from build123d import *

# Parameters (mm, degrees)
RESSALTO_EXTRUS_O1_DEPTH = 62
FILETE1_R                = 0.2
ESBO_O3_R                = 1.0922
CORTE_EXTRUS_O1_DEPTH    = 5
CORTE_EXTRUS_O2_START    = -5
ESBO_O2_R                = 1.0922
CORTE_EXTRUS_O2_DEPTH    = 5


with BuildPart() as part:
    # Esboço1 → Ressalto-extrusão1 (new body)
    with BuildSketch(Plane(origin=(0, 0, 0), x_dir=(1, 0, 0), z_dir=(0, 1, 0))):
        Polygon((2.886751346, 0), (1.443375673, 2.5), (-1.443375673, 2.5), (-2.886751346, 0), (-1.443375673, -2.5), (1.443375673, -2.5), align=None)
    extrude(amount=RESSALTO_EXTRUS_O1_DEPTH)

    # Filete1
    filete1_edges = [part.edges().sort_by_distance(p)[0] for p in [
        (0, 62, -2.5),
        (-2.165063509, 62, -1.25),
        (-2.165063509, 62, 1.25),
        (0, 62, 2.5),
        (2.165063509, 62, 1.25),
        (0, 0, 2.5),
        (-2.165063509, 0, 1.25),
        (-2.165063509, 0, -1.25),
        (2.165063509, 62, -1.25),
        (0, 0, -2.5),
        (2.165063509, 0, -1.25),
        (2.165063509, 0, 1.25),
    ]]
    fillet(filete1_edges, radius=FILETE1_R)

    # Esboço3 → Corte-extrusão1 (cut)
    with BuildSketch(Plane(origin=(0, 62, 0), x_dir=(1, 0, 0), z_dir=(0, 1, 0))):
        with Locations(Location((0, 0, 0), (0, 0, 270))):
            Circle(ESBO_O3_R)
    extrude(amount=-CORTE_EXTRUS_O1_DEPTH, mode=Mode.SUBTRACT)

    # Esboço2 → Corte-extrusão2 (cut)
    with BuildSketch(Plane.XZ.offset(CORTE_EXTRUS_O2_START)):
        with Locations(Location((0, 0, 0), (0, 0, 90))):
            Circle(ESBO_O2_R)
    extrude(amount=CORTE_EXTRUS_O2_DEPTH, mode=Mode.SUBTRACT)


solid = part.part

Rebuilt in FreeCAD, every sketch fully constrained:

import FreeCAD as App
import Part
import Sketcher
Q = App.Units.Quantity


def edges_at(feature, points):
    """Names of the edges that pass closest to the given points."""
    edges = feature.Shape.Edges
    near = lambda p: min(range(len(edges)), key=lambda i: edges[i].distToShape(Part.Vertex(*p))[0])
    return sorted({f"Edge{near(p) + 1}" for p in points})


def add_polygon(sketch, points):
    """Adds a closed chain of lines whose ends are joined by coincident constraints."""
    first, n = sketch.GeometryCount, len(points)
    for a, b in zip(points, points[1:] + points[:1]):
        sketch.addGeometry(Part.LineSegment(App.Vector(*a, 0), App.Vector(*b, 0)), False)
    for i in range(n):
        sketch.addConstraint(Sketcher.Constraint("Coincident", first + i, 2, first + (i + 1) % n, 1))

doc = App.newDocument("Part")
body = doc.addObject("PartDesign::Body", "Body")

sketch1 = body.newObject("Sketcher::SketchObject", "Sketch")
sketch1.AttachmentSupport = (doc.getObject("XZ_Plane"), [""])
sketch1.MapMode = "FlatFace"
add_polygon(sketch1, [(2.886751, 0), (1.443376, -2.5), (-1.443376, -2.5), (-2.886751, 0), (-1.443376, 2.5), (1.443376, 2.5)])
sketch1.addConstraint(Sketcher.Constraint("Horizontal", 1))
sketch1.addConstraint(Sketcher.Constraint("Horizontal", 4))
sketch1.addConstraint(Sketcher.Constraint("Symmetric", 0, 2, 3, 2, -1, 1))
sketch1.addConstraint(Sketcher.Constraint("Symmetric", 2, 2, 5, 2, -1, 1))
sketch1.addConstraint(Sketcher.Constraint("PointOnObject", 2, 2, -1))
sketch1.addConstraint(Sketcher.Constraint("Parallel", 2, 5))
sketch1.addConstraint(Sketcher.Constraint("Vertical", 1, 2, 3, 2))
sketch1.addConstraint(Sketcher.Constraint("Angle", 0, Q("-120 deg")))
sketch1.addConstraint(Sketcher.Constraint("DistanceY", 1, 2, 3, 2, 5.0))
sketch1.addConstraint(Sketcher.Constraint("DistanceX", 1, 2, 1, 1, 2.886751))
pad1 = body.newObject("PartDesign::Pad", "Pad")
pad1.Profile = sketch1
pad1.Length = 62
pad1.Reversed = True
doc.recompute()

fillet = body.newObject("PartDesign::Fillet", "Fillet")
fillet.Base = (pad1, edges_at(pad1, [
    (0, 62, -2.5),
    (-2.165, 62, -1.25),
    (-2.165, 62, 1.25),
    (0, 62, 2.5),
    (2.165, 62, 1.25),
    (0, 0, 2.5),
    (-2.165, 0, 1.25),
    (-2.165, 0, -1.25),
    (2.165, 62, -1.25),
    (0, 0, -2.5),
    (2.165, 0, -1.25),
    (2.165, 0, 1.25),
]))
fillet.Radius = 0.2

sketch2 = body.newObject("Sketcher::SketchObject", "Sketch001")
sketch2.AttachmentSupport = (doc.getObject("XZ_Plane"), [""])
sketch2.MapMode = "FlatFace"
sketch2.AttachmentOffset = App.Placement(App.Vector(0, 0, -62), App.Rotation())
sketch2.addGeometry(Part.Circle(App.Vector(0, 0, 0), App.Vector(0, 0, 1), 1.0922), False)
sketch2.addConstraint(Sketcher.Constraint("Coincident", 0, 3, -1, 1))
sketch2.addConstraint(Sketcher.Constraint("Diameter", 0, 2.1844))
pocket1 = body.newObject("PartDesign::Pocket", "Pocket")
pocket1.Profile = sketch2
pocket1.Length = 5
pocket1.Reversed = True

sketch3 = body.newObject("Sketcher::SketchObject", "Sketch002")
sketch3.AttachmentSupport = (doc.getObject("XZ_Plane"), [""])
sketch3.MapMode = "FlatFace"
sketch3.AttachmentOffset = App.Placement(App.Vector(0, 0, -5), App.Rotation())
sketch3.addGeometry(Part.Circle(App.Vector(0, 0, 0), App.Vector(0, 0, 1), 1.0922), False)
sketch3.addConstraint(Sketcher.Constraint("Coincident", 0, 3, -1, 1))
sketch3.addConstraint(Sketcher.Constraint("Diameter", 0, 2.1844))
pocket2 = body.newObject("PartDesign::Pocket", "Pocket001")
pocket2.Profile = sketch3
pocket2.Length = 5
pocket2.Reversed = True

doc.recompute()
